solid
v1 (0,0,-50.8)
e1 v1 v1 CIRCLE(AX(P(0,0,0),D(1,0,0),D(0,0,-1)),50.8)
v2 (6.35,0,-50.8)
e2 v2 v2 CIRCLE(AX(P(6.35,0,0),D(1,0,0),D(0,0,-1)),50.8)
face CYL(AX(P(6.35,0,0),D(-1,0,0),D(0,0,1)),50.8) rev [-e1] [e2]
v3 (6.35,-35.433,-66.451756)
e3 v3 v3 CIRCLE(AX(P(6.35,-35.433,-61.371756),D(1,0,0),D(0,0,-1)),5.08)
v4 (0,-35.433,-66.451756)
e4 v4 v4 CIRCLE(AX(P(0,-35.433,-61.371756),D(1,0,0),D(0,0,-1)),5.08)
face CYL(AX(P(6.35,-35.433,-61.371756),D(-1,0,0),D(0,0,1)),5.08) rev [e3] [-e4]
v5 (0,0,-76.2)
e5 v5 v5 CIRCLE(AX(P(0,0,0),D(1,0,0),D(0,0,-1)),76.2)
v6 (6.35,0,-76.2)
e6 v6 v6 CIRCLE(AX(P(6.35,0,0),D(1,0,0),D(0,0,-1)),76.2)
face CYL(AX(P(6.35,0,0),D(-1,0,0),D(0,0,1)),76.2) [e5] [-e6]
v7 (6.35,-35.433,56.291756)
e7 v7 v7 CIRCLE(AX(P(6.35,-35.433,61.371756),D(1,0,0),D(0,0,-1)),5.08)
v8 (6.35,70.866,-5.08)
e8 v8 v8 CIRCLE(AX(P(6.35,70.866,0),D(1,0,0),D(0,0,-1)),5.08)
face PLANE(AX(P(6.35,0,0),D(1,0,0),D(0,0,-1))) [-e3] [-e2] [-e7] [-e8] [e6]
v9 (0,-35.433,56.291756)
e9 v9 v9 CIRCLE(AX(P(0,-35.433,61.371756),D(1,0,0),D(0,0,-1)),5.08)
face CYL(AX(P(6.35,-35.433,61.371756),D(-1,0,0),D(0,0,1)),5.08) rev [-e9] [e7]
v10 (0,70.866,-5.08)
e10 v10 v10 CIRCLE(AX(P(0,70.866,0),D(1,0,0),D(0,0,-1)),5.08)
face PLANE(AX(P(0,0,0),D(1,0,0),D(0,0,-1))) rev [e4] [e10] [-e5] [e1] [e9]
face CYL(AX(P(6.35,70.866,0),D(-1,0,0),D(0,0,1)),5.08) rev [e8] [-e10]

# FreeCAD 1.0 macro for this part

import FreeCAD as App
import Part
import Sketcher
Q = App.Units.Quantity

doc = App.newDocument("Part")
body = doc.addObject("PartDesign::Body", "Body")

# Sketch on YZ plane
sketch1 = doc.addObject("Sketcher::SketchObject", "Sketch")
body.addObject(sketch1)
sketch1.AttachmentSupport = (doc.YZ_Plane, [""])
sketch1.MapMode = "FlatFace"
sketch1.addGeometry(Part.Circle(App.Vector(0, 0, 0), App.Vector(0, 0, 1), 76), False)
sketch1.addGeometry(Part.Circle(App.Vector(-35, 61, 0), App.Vector(0, 0, 1), 5), False)
sketch1.addGeometry(Part.Circle(App.Vector(-35, -61, 0), App.Vector(0, 0, 1), 5), False)
sketch1.addGeometry(Part.Circle(App.Vector(0, 0, 0), App.Vector(0, 0, 1), 51), False)
sketch1.addGeometry(Part.Circle(App.Vector(71, 0, 0), App.Vector(0, 0, 1), 5), False)
sketch1.addConstraint(Sketcher.Constraint("Coincident", 0, 3, -1, 1))
sketch1.addConstraint(Sketcher.Constraint("Coincident", 3, 3, -1, 1))
sketch1.addConstraint(Sketcher.Constraint("Equal", 1, 2))
sketch1.addConstraint(Sketcher.Constraint("Equal", 2, 4))
sketch1.addConstraint(Sketcher.Constraint("Symmetric", 1, 3, 2, 3, -1))
sketch1.addConstraint(Sketcher.Constraint("PointOnObject", 4, 3, -1))
sketch1.addConstraint(Sketcher.Constraint("Diameter", 0, Q("6 in")))
sketch1.addConstraint(Sketcher.Constraint("Diameter", 3, Q("4 in")))
sketch1.addConstraint(Sketcher.Constraint("Diameter", 1, Q("0.4 in")))
sketch1.addConstraint(Sketcher.Constraint("DistanceX", -1, 1, 4, 3, Q("2.79 in")))
sketch1.addConstraint(Sketcher.Constraint("DistanceX", 1, 3, -1, 1, Q("1.395 in")))
sketch1.addConstraint(Sketcher.Constraint("DistanceY", -1, 1, 1, 3, Q("61.371756 mm")))
pad1 = doc.addObject("PartDesign::Pad", "Pad")
body.addObject(pad1)
pad1.Profile = sketch1
pad1.Length = Q("0.25 in")

doc.recompute()
